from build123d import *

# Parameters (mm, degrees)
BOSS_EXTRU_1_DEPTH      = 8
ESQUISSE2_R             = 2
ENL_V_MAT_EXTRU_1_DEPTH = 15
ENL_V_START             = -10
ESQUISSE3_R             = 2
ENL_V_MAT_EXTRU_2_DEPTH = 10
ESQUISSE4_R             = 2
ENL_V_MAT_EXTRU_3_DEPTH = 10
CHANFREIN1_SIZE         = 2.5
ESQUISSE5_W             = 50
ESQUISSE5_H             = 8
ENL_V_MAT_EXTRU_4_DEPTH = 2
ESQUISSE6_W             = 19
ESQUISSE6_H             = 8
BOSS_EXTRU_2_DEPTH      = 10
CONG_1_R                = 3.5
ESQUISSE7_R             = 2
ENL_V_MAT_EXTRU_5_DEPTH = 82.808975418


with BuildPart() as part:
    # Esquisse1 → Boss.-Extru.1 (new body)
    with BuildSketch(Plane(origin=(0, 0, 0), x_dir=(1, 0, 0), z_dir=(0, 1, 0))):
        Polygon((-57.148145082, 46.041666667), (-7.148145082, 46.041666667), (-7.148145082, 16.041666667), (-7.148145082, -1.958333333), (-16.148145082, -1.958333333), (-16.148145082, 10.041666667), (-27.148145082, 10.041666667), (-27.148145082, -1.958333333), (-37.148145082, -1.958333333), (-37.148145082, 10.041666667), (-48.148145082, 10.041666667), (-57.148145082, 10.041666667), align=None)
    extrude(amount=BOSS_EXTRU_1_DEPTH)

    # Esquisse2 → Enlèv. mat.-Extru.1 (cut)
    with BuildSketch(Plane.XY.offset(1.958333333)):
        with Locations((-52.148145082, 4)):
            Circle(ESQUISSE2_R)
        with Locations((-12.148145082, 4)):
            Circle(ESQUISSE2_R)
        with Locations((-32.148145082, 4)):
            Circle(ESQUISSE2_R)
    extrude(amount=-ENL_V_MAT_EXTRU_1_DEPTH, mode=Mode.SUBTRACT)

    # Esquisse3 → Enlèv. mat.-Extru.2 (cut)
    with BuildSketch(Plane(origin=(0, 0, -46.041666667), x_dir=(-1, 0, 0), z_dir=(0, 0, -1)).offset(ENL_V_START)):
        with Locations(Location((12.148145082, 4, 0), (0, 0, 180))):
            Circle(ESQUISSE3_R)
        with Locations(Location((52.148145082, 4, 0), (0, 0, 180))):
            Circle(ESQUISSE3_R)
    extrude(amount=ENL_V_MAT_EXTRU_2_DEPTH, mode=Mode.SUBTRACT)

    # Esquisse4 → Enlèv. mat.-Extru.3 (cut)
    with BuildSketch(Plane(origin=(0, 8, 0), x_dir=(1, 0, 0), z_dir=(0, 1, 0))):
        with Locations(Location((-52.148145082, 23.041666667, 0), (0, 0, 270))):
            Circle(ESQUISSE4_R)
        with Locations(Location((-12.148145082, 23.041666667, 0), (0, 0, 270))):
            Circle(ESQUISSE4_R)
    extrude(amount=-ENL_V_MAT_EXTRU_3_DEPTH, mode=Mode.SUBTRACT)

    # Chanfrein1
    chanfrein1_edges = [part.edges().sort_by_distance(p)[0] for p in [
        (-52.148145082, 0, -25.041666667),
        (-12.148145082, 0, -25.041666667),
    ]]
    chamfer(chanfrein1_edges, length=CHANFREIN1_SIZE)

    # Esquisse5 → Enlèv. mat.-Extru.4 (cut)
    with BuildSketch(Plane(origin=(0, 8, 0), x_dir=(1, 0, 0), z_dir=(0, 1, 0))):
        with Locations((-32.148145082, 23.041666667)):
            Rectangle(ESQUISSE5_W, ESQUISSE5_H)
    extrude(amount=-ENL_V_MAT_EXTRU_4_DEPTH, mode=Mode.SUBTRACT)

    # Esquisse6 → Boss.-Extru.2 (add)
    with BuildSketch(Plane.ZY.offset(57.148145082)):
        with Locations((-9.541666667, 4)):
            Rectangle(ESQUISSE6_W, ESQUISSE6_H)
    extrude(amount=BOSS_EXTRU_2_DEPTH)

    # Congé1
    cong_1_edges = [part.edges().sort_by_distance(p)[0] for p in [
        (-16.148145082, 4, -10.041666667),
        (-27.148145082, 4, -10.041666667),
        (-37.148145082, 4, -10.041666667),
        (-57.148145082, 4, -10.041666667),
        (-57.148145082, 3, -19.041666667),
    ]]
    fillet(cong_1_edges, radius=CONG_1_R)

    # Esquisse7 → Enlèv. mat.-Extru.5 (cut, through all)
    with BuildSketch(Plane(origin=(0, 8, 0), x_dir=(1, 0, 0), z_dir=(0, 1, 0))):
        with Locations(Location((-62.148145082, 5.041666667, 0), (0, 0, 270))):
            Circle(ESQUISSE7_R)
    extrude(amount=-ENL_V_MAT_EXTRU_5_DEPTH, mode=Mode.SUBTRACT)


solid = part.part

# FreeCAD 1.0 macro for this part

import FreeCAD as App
import Part
import Sketcher
Q = App.Units.Quantity


def edges_at(feature, points):
    """Names of the edges that pass closest to the given points."""
    edges = feature.Shape.Edges
    near = lambda p: min(range(len(edges)), key=lambda i: edges[i].distToShape(Part.Vertex(*p))[0])
    return sorted({f"Edge{near(p) + 1}" for p in points})


def add_polygon(sketch, points):
    """Adds a closed chain of lines whose ends are joined by coincident constraints."""
    first, n = sketch.GeometryCount, len(points)
    for a, b in zip(points, points[1:] + points[:1]):
        sketch.addGeometry(Part.LineSegment(App.Vector(*a, 0), App.Vector(*b, 0)), False)
    for i in range(n):
        sketch.addConstraint(Sketcher.Constraint("Coincident", first + i, 2, first + (i + 1) % n, 1))

doc = App.newDocument("Part")
body = doc.addObject("PartDesign::Body", "Body")

sketch1 = body.newObject("Sketcher::SketchObject", "Sketch")
sketch1.AttachmentSupport = (doc.getObject("XZ_Plane"), [""])
sketch1.MapMode = "FlatFace"
add_polygon(sketch1, [(-7, -46), (-57, -46), (-57, -10), (-37, -10), (-37, 2), (-27, 2), (-27, -10), (-16, -10), (-16, 2), (-7, 2)])
sketch1.addConstraint(Sketcher.Constraint("Horizontal", 0))
sketch1.addConstraint(Sketcher.Constraint("Vertical", 1))
sketch1.addConstraint(Sketcher.Constraint("Horizontal", 2))
sketch1.addConstraint(Sketcher.Constraint("Vertical", 3))
sketch1.addConstraint(Sketcher.Constraint("Horizontal", 4))
sketch1.addConstraint(Sketcher.Constraint("Vertical", 5))
sketch1.addConstraint(Sketcher.Constraint("Horizontal", 6))
sketch1.addConstraint(Sketcher.Constraint("Vertical", 7))
sketch1.addConstraint(Sketcher.Constraint("Horizontal", 8))
sketch1.addConstraint(Sketcher.Constraint("Vertical", 9))
sketch1.addConstraint(Sketcher.Constraint("Horizontal", 2, 2, 5, 2))
sketch1.addConstraint(Sketcher.Constraint("Horizontal", 4, 2, 7, 2))
sketch1.addConstraint(Sketcher.Constraint("DistanceX", 0, 2, 0, 1, Q("50 mm")))
sketch1.addConstraint(Sketcher.Constraint("DistanceX", 2, 1, 2, 2, Q("20 mm")))
sketch1.addConstraint(Sketcher.Constraint("DistanceX", 4, 1, 4, 2, Q("10 mm")))
sketch1.addConstraint(Sketcher.Constraint("DistanceX", 6, 1, 6, 2, Q("11 mm")))
sketch1.addConstraint(Sketcher.Constraint("DistanceY", 1, 1, 1, 2, Q("36 mm")))
sketch1.addConstraint(Sketcher.Constraint("DistanceY", 3, 1, 3, 2, Q("12 mm")))
sketch1.addConstraint(Sketcher.Constraint("DistanceX", 0, 2, -1, 1, Q("57.148145 mm")))
sketch1.addConstraint(Sketcher.Constraint("DistanceY", 0, 2, -1, 1, Q("46.041667 mm")))
pad1 = body.newObject("PartDesign::Pad", "Pad")
pad1.Profile = sketch1
pad1.Length = 8
pad1.Reversed = True

sketch2 = body.newObject("Sketcher::SketchObject", "Sketch001")
sketch2.AttachmentSupport = (doc.getObject("XY_Plane"), [""])
sketch2.MapMode = "FlatFace"
sketch2.AttachmentOffset = App.Placement(App.Vector(0, 0, 1.958333), App.Rotation())
sketch2.addGeometry(Part.Circle(App.Vector(-52.1, 4, 0), App.Vector(0, 0, 1), 2), False)
sketch2.addGeometry(Part.Circle(App.Vector(-12.1, 4, 0), App.Vector(0, 0, 1), 2), False)
sketch2.addGeometry(Part.Circle(App.Vector(-32.1, 4, 0), App.Vector(0, 0, 1), 2), False)
sketch2.addConstraint(Sketcher.Constraint("Equal", 0, 1))
sketch2.addConstraint(Sketcher.Constraint("Equal", 1, 2))
sketch2.addConstraint(Sketcher.Constraint("Horizontal", 0, 3, 1, 3))
sketch2.addConstraint(Sketcher.Constraint("Horizontal", 1, 3, 2, 3))
sketch2.addConstraint(Sketcher.Constraint("Diameter", 0, Q("4 mm")))
sketch2.addConstraint(Sketcher.Constraint("DistanceY", -1, 1, 0, 3, Q("4 mm")))
sketch2.addConstraint(Sketcher.Constraint("DistanceX", 0, 3, 1, 3, Q("40 mm")))
sketch2.addConstraint(Sketcher.Constraint("DistanceX", 0, 3, 2, 3, Q("20 mm")))
sketch2.addConstraint(Sketcher.Constraint("DistanceX", 0, 3, -1, 1, Q("52.148145 mm")))
pocket1 = body.newObject("PartDesign::Pocket", "Pocket")
pocket1.Profile = sketch2
pocket1.Length = 15

sketch3 = body.newObject("Sketcher::SketchObject", "Sketch002")
sketch3.AttachmentSupport = (doc.getObject("XY_Plane"), [""])
sketch3.MapMode = "FlatFace"
sketch3.AttachmentOffset = App.Placement(App.Vector(0, 0, -36.041667), App.Rotation())
sketch3.addGeometry(Part.Circle(App.Vector(-12.1, 4, 0), App.Vector(0, 0, 1), 2), False)
sketch3.addGeometry(Part.Circle(App.Vector(-52.1, 4, 0), App.Vector(0, 0, 1), 2), False)
sketch3.addConstraint(Sketcher.Constraint("Equal", 0, 1))
sketch3.addConstraint(Sketcher.Constraint("Horizontal", 0, 3, 1, 3))
sketch3.addConstraint(Sketcher.Constraint("Diameter", 0, Q("4 mm")))
sketch3.addConstraint(Sketcher.Constraint("DistanceY", -1, 1, 0, 3, Q("4 mm")))
sketch3.addConstraint(Sketcher.Constraint("DistanceX", 1, 3, 0, 3, Q("40 mm")))
sketch3.addConstraint(Sketcher.Constraint("DistanceX", 0, 3, -1, 1, Q("12.148145 mm")))
pocket2 = body.newObject("PartDesign::Pocket", "Pocket001")
pocket2.Profile = sketch3
pocket2.Length = 10

sketch4 = body.newObject("Sketcher::SketchObject", "Sketch003")
sketch4.AttachmentSupport = (doc.getObject("XZ_Plane"), [""])
sketch4.MapMode = "FlatFace"
sketch4.AttachmentOffset = App.Placement(App.Vector(0, 0, -8), App.Rotation())
sketch4.addGeometry(Part.Circle(App.Vector(-52.1, -23, 0), App.Vector(0, 0, 1), 2), False)
sketch4.addGeometry(Part.Circle(App.Vector(-12.1, -23, 0), App.Vector(0, 0, 1), 2), False)
sketch4.addConstraint(Sketcher.Constraint("Equal", 0, 1))
sketch4.addConstraint(Sketcher.Constraint("Horizontal", 0, 3, 1, 3))
sketch4.addConstraint(Sketcher.Constraint("Diameter", 0, Q("4 mm")))
sketch4.addConstraint(Sketcher.Constraint("DistanceX", 0, 3, 1, 3, Q("40 mm")))
sketch4.addConstraint(Sketcher.Constraint("DistanceX", 0, 3, -1, 1, Q("52.148145 mm")))
sketch4.addConstraint(Sketcher.Constraint("DistanceY", 0, 3, -1, 1, Q("23.041667 mm")))
pocket3 = body.newObject("PartDesign::Pocket", "Pocket002")
pocket3.Profile = sketch4
pocket3.Length = 10
pocket3.Reversed = True
doc.recompute()

chamfer = body.newObject("PartDesign::Chamfer", "Chamfer")
chamfer.Base = (pocket3, edges_at(pocket3, [(-52.148, 0, -25.042), (-12.148, 0, -25.042)]))
chamfer.Size = 2.5

sketch5 = body.newObject("Sketcher::SketchObject", "Sketch004")
sketch5.AttachmentSupport = (doc.getObject("XZ_Plane"), [""])
sketch5.MapMode = "FlatFace"
sketch5.AttachmentOffset = App.Placement(App.Vector(0, 0, -8), App.Rotation())
add_polygon(sketch5, [(-57, -27), (-57, -19), (-7, -19), (-7, -27)])
sketch5.addConstraint(Sketcher.Constraint("Vertical", 0))
sketch5.addConstraint(Sketcher.Constraint("Horizontal", 1))
sketch5.addConstraint(Sketcher.Constraint("Vertical", 2))
sketch5.addConstraint(Sketcher.Constraint("Horizontal", 3))
sketch5.addConstraint(Sketcher.Constraint("DistanceX", 1, 1, 1, 2, Q("50 mm")))
sketch5.addConstraint(Sketcher.Constraint("DistanceY", 0, 1, 0, 2, Q("8 mm")))
sketch5.addConstraint(Sketcher.Constraint("DistanceX", 0, 2, -1, 1, Q("57.148145 mm")))
sketch5.addConstraint(Sketcher.Constraint("DistanceY", 0, 2, -1, 1, Q("19.041667 mm")))
pocket4 = body.newObject("PartDesign::Pocket", "Pocket003")
pocket4.Profile = sketch5
pocket4.Length = 2
pocket4.Reversed = True

sketch6 = body.newObject("Sketcher::SketchObject", "Sketch005")
sketch6.AttachmentSupport = (doc.getObject("YZ_Plane"), [""])
sketch6.MapMode = "FlatFace"
sketch6.AttachmentOffset = App.Placement(App.Vector(0, 0, -57.148145), App.Rotation())
add_polygon(sketch6, [(8, -19), (0, -19), (0, 0), (8, 0)])
sketch6.addConstraint(Sketcher.Constraint("Horizontal", 0))
sketch6.addConstraint(Sketcher.Constraint("Vertical", 1))
sketch6.addConstraint(Sketcher.Constraint("Horizontal", 2))
sketch6.addConstraint(Sketcher.Constraint("Vertical", 3))
sketch6.addConstraint(Sketcher.Constraint("PointOnObject", 0, 2, -2))
sketch6.addConstraint(Sketcher.Constraint("DistanceX", 0, 2, 0, 1, Q("8 mm")))
sketch6.addConstraint(Sketcher.Constraint("DistanceY", 1, 1, 1, 2, Q("19 mm")))
sketch6.addConstraint(Sketcher.Constraint("DistanceY", 0, 2, -1, 1, Q("19.041667 mm")))
pad2 = body.newObject("PartDesign::Pad", "Pad001")
pad2.Profile = sketch6
pad2.Length = 10
pad2.Reversed = True
doc.recompute()

fillet = body.newObject("PartDesign::Fillet", "Fillet")
fillet.Base = (pad2, edges_at(pad2, [
    (-16.148, 4, -10.042),
    (-27.148, 4, -10.042),
    (-37.148, 4, -10.042),
    (-57.148, 4, -10.042),
    (-57.148, 3, -19.042),
]))
fillet.Radius = 3.5

sketch7 = body.newObject("Sketcher::SketchObject", "Sketch006")
sketch7.AttachmentSupport = (doc.getObject("XZ_Plane"), [""])
sketch7.MapMode = "FlatFace"
sketch7.AttachmentOffset = App.Placement(App.Vector(0, 0, -8), App.Rotation())
sketch7.addGeometry(Part.Circle(App.Vector(-62.1, -5, 0), App.Vector(0, 0, 1), 2), False)
sketch7.addConstraint(Sketcher.Constraint("Diameter", 0, Q("4 mm")))
sketch7.addConstraint(Sketcher.Constraint("DistanceX", 0, 3, -1, 1, Q("62.148145 mm")))
sketch7.addConstraint(Sketcher.Constraint("DistanceY", 0, 3, -1, 1, Q("5.041667 mm")))
pocket5 = body.newObject("PartDesign::Pocket", "Pocket004")
pocket5.Profile = sketch7
pocket5.Type = "ThroughAll"
pocket5.Reversed = True

doc.recompute()
